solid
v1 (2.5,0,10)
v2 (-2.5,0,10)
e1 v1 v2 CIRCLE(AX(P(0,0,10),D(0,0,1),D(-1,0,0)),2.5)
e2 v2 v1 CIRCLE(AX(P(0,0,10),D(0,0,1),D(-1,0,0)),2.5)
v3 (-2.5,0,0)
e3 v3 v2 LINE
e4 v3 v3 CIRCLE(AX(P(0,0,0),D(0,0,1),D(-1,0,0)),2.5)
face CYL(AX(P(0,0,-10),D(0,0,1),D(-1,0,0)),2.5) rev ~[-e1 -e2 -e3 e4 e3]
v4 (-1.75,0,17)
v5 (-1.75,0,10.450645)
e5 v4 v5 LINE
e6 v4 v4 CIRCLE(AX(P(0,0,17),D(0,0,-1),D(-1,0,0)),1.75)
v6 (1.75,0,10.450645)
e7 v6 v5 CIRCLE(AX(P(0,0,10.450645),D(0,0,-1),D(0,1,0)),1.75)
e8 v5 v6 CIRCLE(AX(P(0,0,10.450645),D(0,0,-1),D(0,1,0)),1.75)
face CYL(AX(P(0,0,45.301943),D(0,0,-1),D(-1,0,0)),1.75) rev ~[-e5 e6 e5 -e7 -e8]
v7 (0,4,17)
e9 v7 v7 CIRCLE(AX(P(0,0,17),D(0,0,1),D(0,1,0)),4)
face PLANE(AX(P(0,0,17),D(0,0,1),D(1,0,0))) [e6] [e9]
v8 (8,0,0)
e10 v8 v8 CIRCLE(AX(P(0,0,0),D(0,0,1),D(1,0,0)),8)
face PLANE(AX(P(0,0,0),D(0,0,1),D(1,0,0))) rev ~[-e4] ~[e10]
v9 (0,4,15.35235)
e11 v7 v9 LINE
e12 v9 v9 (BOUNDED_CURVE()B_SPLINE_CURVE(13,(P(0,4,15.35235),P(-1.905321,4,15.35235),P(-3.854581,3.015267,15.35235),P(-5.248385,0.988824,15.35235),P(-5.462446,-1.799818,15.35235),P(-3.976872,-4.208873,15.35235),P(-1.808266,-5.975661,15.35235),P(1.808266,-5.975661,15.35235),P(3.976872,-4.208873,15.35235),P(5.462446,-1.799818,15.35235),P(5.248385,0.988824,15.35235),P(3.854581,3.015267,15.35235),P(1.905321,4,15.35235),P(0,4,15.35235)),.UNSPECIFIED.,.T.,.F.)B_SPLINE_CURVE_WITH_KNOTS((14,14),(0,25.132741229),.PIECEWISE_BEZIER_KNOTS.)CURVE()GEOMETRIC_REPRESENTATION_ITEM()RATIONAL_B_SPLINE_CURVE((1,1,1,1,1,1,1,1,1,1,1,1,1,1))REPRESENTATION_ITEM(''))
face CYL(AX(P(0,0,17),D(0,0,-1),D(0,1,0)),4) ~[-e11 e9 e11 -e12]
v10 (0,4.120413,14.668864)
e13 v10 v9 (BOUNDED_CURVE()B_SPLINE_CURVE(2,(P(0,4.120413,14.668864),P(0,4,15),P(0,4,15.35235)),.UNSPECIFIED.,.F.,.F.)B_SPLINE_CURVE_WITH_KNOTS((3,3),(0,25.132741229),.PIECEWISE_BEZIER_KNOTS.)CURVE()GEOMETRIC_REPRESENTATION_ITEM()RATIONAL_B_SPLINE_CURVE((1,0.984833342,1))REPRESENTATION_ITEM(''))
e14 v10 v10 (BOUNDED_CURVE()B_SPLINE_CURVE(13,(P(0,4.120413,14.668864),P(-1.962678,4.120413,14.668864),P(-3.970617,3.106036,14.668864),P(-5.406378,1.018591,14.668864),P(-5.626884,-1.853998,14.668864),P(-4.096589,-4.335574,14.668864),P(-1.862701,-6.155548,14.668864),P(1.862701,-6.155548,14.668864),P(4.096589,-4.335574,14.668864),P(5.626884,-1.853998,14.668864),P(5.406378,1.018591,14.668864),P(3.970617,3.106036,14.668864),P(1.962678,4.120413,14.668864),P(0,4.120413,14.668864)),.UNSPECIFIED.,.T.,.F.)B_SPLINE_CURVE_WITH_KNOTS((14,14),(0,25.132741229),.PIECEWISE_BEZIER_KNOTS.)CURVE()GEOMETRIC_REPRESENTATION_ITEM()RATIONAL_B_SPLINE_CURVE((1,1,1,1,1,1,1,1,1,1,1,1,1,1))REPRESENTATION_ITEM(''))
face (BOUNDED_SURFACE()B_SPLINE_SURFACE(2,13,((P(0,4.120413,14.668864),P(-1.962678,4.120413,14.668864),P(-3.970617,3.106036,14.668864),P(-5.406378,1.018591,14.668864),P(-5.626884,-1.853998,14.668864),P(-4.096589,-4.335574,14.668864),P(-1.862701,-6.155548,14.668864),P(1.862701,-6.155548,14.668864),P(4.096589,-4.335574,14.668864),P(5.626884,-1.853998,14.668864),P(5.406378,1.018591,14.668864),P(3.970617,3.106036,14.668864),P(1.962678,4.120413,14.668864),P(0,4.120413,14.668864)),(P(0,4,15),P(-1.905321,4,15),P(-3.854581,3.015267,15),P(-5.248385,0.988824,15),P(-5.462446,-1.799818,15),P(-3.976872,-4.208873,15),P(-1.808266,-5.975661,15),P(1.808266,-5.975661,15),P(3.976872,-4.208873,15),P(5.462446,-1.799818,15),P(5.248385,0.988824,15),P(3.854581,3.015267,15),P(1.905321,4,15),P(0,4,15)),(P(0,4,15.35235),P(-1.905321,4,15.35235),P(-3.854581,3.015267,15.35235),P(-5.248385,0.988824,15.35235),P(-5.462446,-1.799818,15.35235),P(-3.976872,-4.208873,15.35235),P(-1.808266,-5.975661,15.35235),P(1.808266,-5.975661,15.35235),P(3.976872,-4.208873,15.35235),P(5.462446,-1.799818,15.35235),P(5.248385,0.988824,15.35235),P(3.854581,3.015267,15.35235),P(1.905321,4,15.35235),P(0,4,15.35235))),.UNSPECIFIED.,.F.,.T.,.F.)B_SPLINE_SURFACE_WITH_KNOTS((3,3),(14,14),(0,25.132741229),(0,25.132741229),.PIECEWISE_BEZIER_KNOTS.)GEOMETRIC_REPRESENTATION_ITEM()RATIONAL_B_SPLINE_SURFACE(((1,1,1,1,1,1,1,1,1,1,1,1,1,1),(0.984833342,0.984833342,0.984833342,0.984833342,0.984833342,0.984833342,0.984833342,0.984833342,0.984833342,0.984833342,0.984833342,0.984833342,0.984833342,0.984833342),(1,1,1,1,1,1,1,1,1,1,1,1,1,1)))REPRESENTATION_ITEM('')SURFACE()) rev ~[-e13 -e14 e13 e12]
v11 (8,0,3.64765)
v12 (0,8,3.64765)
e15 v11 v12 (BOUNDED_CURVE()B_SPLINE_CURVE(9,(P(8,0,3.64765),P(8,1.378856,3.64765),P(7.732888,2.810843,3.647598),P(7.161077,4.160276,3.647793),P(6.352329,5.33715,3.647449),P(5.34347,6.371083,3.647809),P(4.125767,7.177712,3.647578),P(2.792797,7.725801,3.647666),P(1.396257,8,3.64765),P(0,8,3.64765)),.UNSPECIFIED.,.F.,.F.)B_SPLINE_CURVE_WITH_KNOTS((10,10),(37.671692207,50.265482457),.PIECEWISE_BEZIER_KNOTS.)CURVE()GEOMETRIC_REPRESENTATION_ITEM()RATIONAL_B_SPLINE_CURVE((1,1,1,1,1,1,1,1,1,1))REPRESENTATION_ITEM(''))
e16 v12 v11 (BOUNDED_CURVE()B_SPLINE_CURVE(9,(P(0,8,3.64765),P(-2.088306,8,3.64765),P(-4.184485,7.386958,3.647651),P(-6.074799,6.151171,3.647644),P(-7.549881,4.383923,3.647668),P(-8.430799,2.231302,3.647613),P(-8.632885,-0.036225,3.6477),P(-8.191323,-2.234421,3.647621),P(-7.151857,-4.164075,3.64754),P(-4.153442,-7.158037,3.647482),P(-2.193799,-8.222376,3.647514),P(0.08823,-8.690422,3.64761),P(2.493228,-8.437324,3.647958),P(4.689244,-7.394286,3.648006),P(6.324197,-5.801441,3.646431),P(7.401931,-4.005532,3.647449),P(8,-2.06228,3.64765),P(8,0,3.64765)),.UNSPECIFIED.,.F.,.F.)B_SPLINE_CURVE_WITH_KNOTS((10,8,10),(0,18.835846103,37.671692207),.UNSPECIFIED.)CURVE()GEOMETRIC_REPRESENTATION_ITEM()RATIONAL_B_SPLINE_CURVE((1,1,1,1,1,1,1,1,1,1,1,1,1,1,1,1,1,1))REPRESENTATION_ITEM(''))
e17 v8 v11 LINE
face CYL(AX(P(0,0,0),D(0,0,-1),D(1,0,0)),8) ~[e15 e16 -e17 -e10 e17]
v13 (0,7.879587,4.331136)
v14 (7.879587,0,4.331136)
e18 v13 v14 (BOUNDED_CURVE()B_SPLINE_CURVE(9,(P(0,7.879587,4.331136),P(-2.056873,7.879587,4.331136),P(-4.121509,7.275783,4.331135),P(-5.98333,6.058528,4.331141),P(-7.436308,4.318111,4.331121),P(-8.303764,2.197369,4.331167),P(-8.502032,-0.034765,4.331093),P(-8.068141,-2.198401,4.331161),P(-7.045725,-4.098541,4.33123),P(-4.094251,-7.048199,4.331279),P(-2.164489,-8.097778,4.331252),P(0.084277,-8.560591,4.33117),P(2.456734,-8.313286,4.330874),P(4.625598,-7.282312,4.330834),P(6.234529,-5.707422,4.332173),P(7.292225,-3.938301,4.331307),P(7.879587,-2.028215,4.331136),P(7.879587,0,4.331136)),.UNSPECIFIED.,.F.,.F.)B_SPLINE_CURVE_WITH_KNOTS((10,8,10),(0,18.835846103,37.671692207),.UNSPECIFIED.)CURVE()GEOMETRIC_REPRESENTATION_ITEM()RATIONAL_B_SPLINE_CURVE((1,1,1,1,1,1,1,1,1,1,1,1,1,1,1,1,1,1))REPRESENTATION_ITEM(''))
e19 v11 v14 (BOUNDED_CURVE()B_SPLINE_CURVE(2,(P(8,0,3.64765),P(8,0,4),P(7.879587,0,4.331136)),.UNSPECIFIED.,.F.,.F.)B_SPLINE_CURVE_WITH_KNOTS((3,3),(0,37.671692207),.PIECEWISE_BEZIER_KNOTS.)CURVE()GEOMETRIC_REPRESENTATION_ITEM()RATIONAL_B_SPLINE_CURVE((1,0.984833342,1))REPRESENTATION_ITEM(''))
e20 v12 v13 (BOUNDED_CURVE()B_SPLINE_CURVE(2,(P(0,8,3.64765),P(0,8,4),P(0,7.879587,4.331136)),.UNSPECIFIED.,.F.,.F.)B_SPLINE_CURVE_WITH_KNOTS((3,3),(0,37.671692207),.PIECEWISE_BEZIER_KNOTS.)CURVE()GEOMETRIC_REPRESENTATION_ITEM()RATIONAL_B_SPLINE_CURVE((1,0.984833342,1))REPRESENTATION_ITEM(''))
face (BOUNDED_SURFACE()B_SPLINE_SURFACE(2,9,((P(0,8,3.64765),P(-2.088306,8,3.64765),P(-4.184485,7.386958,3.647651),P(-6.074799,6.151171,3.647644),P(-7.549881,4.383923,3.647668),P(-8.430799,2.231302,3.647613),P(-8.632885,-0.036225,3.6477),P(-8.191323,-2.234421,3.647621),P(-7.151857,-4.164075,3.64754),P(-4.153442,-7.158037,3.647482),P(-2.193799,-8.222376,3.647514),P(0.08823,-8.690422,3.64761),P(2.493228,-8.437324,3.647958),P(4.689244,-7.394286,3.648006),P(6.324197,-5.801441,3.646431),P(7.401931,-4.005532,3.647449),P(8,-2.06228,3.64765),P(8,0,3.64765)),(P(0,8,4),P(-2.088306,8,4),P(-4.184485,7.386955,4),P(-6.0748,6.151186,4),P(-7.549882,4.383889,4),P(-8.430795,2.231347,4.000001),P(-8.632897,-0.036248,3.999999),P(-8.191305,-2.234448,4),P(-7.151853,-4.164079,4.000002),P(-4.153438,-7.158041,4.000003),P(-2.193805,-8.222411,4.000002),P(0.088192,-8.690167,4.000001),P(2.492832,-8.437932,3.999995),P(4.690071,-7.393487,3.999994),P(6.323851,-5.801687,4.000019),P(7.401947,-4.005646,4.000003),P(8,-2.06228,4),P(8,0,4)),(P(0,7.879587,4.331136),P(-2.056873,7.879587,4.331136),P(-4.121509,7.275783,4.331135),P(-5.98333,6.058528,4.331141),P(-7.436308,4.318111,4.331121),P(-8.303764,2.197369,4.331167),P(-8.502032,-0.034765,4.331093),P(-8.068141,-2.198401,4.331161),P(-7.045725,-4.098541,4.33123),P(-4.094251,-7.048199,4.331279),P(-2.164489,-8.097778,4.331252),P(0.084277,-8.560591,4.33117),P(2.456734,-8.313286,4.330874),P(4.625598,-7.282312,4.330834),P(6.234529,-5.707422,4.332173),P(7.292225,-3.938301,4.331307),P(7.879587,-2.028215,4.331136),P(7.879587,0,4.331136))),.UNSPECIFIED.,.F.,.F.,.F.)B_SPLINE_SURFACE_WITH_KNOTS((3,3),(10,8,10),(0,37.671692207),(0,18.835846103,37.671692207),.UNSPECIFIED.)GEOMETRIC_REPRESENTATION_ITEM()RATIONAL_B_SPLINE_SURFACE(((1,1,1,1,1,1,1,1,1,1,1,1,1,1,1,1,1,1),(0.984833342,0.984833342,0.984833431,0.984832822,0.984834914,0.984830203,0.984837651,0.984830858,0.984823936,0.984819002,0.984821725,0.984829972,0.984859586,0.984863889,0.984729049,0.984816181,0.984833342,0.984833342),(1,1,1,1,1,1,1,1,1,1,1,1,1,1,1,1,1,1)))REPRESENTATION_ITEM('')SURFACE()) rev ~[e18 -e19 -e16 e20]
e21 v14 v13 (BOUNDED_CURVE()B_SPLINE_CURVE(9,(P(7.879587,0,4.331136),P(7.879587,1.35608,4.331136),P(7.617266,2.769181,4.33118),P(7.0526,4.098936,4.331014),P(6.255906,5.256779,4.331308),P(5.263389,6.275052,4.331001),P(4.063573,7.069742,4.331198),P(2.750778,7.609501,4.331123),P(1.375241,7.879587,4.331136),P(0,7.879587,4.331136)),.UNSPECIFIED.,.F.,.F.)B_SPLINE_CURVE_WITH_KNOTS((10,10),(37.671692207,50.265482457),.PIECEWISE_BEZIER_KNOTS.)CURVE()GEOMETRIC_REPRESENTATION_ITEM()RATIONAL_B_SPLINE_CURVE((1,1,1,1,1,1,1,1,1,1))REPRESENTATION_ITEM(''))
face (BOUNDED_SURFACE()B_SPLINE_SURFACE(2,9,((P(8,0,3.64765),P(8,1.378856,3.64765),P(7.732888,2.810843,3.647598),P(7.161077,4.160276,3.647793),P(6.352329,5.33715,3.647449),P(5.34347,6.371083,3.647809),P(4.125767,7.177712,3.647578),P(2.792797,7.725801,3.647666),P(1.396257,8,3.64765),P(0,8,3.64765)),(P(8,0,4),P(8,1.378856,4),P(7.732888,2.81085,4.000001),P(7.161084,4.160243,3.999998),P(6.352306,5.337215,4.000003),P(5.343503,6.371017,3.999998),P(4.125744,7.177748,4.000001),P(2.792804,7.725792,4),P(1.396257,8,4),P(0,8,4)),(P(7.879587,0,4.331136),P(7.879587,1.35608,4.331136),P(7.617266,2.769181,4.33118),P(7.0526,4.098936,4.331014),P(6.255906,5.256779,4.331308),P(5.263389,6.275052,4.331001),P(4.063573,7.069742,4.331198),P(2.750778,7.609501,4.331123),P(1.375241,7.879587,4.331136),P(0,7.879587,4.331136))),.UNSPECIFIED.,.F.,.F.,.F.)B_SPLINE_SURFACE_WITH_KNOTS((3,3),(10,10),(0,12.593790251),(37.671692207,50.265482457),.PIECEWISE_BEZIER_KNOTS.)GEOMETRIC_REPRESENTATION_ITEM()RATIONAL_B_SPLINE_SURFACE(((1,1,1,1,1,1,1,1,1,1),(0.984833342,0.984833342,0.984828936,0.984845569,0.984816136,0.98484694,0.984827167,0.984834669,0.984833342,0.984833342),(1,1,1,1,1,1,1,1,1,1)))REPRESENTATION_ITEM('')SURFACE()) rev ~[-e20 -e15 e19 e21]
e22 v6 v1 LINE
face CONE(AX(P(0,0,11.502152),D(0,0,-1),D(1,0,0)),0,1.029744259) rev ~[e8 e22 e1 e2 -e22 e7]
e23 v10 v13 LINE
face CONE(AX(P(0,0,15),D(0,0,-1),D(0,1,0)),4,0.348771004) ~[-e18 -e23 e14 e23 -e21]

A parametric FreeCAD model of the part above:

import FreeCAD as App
import Part
import Sketcher

V = App.Vector


def edges_at(feature, points):
    """Names of the edges that pass closest to the given points."""
    edges = feature.Shape.Edges
    near = lambda p: min(range(len(edges)), key=lambda i: edges[i].distToShape(Part.Vertex(*p))[0])
    return sorted({f"Edge{near(p) + 1}" for p in points})


def add_polygon(sketch, points):
    """Adds a closed chain of lines whose ends are joined by coincident constraints."""
    first, n = sketch.GeometryCount, len(points)
    for a, b in zip(points, points[1:] + points[:1]):
        sketch.addGeometry(Part.LineSegment(App.Vector(*a, 0), App.Vector(*b, 0)), False)
    for i in range(n):
        sketch.addConstraint(Sketcher.Constraint("Coincident", first + i, 2, first + (i + 1) % n, 1))

doc = App.newDocument("Part")
params = doc.addObject("Spreadsheet::Sheet", "Params")
for row, (alias, value) in enumerate([
    ("sketch1_diameter", "16 mm"),
    ("pad1_length", "17 mm"),
    ("sketch2_width", "4 mm"),
    ("sketch2_height", "13 mm"),
    ("sketch2_height2", "2 mm"),
    ("groove_angle", "360 deg"),
    ("sketch3_diameter", "3.5 mm"),
    ("hole_diameter", "3.5 mm"),
    ("sketch4_diameter", "5 mm"),
    ("hole2_diameter", "5 mm"),
    ("hole2_depth", "10 mm"),
    ("fillet_radius", "2 mm"),
], start=1):
    params.set(f"A{row}", alias)
    params.set(f"B{row}", "=" + value)
    params.setAlias(f"B{row}", alias)

body = doc.addObject("PartDesign::Body", "Body")

sketch1 = body.newObject("Sketcher::SketchObject", "Sketch")
sketch1.AttachmentSupport = (doc.getObject("XY_Plane"), [""])
sketch1.MapMode = "FlatFace"
sketch1.addGeometry(Part.Circle(V(0, 0, 0), V(0, 0, 1), 8), False)
sketch1.addConstraint([
    Sketcher.Constraint("Coincident", 0, 3, -1, 1),
    Sketcher.Constraint("Diameter", 0, 16.0),
])
sketch1.setExpression("Constraints[1]", "Params.sketch1_diameter")
pad1 = body.newObject("PartDesign::Pad", "Pad")
pad1.Profile = sketch1
pad1.setExpression("Length", "Params.pad1_length")

sketch2 = body.newObject("Sketcher::SketchObject", "Sketch001")
sketch2.AttachmentSupport = (doc.getObject("YZ_Plane"), [""])
sketch2.MapMode = "FlatFace"
add_polygon(sketch2, [(4, 15), (8, 4), (8, 17), (4, 17)])
sketch2.addConstraint([
    Sketcher.Constraint("Vertical", 1),
    Sketcher.Constraint("Horizontal", 2),
    Sketcher.Constraint("Vertical", 3),
    Sketcher.Constraint("DistanceX", 2, 2, 2, 1, 4.0),
    Sketcher.Constraint("DistanceY", 1, 1, 1, 2, 13.0),
    Sketcher.Constraint("DistanceY", 3, 2, 3, 1, 2.0),
    Sketcher.Constraint("DistanceX", -1, 1, 0, 2, 8.0),
    Sketcher.Constraint("DistanceY", -1, 1, 0, 2, 4.0),
])
sketch2.setExpression("Constraints[7]", "Params.sketch2_width")
sketch2.setExpression("Constraints[8]", "Params.sketch2_height")
sketch2.setExpression("Constraints[9]", "Params.sketch2_height2")
groove = body.newObject("PartDesign::Groove", "Groove")
groove.Profile = sketch2
groove.ReferenceAxis = (sketch2, ["V_Axis"])
groove.setExpression("Angle", "Params.groove_angle")

sketch3 = body.newObject("Sketcher::SketchObject", "Sketch002")
sketch3.AttachmentSupport = (doc.getObject("XY_Plane"), [""])
sketch3.MapMode = "FlatFace"
sketch3.AttachmentOffset = App.Placement(V(0, 0, 17), App.Rotation())
sketch3.addGeometry(Part.Circle(V(0, 0, 0), V(0, 0, 1), 1.8), False)
sketch3.addConstraint([
    Sketcher.Constraint("Coincident", 0, 3, -1, 1),
    Sketcher.Constraint("Diameter", 0, 3.5),
])
sketch3.setExpression("Constraints[1]", "Params.sketch3_diameter")
doc.recompute()
hole = body.newObject("PartDesign::Hole", "Hole")
hole.Profile = sketch3
hole.ThreadType = "None"
hole.setExpression("Diameter", "Params.hole_diameter")
hole.DepthType = "ThroughAll"

sketch4 = body.newObject("Sketcher::SketchObject", "Sketch003")
sketch4.AttachmentSupport = (doc.getObject("XY_Plane"), [""])
sketch4.MapMode = "FlatFace"
sketch4.addGeometry(Part.Circle(V(0, 0, 0), V(0, 0, 1), 2.5), False)
sketch4.addConstraint([
    Sketcher.Constraint("Coincident", 0, 3, -1, 1),
    Sketcher.Constraint("Diameter", 0, 5.0),
])
sketch4.setExpression("Constraints[1]", "Params.sketch4_diameter")
doc.recompute()
hole2 = body.newObject("PartDesign::Hole", "Hole001")
hole2.Profile = sketch4
hole2.ThreadType = "None"
hole2.setExpression("Diameter", "Params.hole2_diameter")
hole2.DepthType = "Dimension"
hole2.setExpression("Depth", "Params.hole2_depth")
hole2.DrillPoint = "Angled"
hole2.DrillPointAngle = 118
hole2.Reversed = True
doc.recompute()

fillet = body.newObject("PartDesign::Fillet", "Fillet")
fillet.Base = (hole2, edges_at(hole2, [
    (0, 6, 9.5),
    (-5.657, -5.657, 4),
    (5.657, 5.657, 4),
    (0, -4, 15),
]))
fillet.setExpression("Radius", "Params.fillet_radius")

doc.recompute()
